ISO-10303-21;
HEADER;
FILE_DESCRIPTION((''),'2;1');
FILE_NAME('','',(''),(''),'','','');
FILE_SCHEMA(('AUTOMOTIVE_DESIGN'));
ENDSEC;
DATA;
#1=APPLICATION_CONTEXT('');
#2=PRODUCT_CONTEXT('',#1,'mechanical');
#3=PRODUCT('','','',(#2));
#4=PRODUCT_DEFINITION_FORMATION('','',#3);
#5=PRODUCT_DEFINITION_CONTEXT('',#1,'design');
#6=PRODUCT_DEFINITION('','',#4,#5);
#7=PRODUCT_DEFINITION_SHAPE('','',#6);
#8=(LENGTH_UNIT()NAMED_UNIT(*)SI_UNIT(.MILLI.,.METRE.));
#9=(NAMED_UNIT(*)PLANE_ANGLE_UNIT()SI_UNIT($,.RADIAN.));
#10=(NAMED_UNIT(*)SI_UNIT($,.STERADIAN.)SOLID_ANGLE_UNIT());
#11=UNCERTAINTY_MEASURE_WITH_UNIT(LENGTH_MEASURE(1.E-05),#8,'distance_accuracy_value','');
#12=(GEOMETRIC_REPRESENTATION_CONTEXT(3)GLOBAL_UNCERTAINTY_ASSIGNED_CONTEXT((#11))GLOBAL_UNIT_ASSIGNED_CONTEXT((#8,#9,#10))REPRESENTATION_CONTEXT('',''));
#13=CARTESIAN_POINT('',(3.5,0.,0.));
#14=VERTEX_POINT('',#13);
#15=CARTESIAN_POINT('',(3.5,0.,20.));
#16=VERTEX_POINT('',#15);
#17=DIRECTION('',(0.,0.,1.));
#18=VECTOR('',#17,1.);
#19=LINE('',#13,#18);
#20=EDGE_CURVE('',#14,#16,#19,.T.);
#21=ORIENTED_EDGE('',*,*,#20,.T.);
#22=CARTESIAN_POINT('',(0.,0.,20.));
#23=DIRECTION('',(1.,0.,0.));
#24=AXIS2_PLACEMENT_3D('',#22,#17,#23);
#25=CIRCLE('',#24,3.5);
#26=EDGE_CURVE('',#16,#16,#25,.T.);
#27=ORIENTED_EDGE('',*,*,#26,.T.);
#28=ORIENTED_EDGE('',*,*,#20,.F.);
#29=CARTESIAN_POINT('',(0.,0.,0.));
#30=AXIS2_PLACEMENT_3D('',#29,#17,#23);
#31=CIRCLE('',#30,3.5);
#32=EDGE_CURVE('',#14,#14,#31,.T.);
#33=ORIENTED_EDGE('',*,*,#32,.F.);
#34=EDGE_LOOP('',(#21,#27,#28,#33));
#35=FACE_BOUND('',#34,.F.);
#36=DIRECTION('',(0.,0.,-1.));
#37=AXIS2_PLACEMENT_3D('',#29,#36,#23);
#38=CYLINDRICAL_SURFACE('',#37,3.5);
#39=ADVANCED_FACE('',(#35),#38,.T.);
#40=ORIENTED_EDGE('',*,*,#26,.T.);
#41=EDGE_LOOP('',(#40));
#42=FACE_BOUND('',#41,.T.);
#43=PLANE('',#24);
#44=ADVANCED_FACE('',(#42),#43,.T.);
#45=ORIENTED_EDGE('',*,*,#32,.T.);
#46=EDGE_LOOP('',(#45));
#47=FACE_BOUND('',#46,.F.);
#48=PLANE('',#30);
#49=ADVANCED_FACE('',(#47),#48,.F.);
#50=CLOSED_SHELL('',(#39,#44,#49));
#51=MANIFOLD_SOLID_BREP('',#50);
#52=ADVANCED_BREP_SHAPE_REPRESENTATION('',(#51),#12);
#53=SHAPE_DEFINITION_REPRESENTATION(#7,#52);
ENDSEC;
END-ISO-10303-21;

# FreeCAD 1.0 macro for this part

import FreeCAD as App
import Part
import Sketcher
Q = App.Units.Quantity

doc = App.newDocument("Part")
body = doc.addObject("PartDesign::Body", "Body")

# Sketch on XY plane
sketch1 = doc.addObject("Sketcher::SketchObject", "Sketch")
body.addObject(sketch1)
sketch1.AttachmentSupport = (doc.XY_Plane, [""])
sketch1.MapMode = "FlatFace"
sketch1.addGeometry(Part.Circle(App.Vector(0, 0, 0), App.Vector(0, 0, 1), 3.5), False)
sketch1.addConstraint([
    Sketcher.Constraint("Coincident", 0, 3, -1, 1),
    Sketcher.Constraint("Diameter", 0, Q("7 mm")),
])
pad1 = doc.addObject("PartDesign::Pad", "Pad")
body.addObject(pad1)
pad1.Profile = sketch1
pad1.Length = 20

doc.recompute()
